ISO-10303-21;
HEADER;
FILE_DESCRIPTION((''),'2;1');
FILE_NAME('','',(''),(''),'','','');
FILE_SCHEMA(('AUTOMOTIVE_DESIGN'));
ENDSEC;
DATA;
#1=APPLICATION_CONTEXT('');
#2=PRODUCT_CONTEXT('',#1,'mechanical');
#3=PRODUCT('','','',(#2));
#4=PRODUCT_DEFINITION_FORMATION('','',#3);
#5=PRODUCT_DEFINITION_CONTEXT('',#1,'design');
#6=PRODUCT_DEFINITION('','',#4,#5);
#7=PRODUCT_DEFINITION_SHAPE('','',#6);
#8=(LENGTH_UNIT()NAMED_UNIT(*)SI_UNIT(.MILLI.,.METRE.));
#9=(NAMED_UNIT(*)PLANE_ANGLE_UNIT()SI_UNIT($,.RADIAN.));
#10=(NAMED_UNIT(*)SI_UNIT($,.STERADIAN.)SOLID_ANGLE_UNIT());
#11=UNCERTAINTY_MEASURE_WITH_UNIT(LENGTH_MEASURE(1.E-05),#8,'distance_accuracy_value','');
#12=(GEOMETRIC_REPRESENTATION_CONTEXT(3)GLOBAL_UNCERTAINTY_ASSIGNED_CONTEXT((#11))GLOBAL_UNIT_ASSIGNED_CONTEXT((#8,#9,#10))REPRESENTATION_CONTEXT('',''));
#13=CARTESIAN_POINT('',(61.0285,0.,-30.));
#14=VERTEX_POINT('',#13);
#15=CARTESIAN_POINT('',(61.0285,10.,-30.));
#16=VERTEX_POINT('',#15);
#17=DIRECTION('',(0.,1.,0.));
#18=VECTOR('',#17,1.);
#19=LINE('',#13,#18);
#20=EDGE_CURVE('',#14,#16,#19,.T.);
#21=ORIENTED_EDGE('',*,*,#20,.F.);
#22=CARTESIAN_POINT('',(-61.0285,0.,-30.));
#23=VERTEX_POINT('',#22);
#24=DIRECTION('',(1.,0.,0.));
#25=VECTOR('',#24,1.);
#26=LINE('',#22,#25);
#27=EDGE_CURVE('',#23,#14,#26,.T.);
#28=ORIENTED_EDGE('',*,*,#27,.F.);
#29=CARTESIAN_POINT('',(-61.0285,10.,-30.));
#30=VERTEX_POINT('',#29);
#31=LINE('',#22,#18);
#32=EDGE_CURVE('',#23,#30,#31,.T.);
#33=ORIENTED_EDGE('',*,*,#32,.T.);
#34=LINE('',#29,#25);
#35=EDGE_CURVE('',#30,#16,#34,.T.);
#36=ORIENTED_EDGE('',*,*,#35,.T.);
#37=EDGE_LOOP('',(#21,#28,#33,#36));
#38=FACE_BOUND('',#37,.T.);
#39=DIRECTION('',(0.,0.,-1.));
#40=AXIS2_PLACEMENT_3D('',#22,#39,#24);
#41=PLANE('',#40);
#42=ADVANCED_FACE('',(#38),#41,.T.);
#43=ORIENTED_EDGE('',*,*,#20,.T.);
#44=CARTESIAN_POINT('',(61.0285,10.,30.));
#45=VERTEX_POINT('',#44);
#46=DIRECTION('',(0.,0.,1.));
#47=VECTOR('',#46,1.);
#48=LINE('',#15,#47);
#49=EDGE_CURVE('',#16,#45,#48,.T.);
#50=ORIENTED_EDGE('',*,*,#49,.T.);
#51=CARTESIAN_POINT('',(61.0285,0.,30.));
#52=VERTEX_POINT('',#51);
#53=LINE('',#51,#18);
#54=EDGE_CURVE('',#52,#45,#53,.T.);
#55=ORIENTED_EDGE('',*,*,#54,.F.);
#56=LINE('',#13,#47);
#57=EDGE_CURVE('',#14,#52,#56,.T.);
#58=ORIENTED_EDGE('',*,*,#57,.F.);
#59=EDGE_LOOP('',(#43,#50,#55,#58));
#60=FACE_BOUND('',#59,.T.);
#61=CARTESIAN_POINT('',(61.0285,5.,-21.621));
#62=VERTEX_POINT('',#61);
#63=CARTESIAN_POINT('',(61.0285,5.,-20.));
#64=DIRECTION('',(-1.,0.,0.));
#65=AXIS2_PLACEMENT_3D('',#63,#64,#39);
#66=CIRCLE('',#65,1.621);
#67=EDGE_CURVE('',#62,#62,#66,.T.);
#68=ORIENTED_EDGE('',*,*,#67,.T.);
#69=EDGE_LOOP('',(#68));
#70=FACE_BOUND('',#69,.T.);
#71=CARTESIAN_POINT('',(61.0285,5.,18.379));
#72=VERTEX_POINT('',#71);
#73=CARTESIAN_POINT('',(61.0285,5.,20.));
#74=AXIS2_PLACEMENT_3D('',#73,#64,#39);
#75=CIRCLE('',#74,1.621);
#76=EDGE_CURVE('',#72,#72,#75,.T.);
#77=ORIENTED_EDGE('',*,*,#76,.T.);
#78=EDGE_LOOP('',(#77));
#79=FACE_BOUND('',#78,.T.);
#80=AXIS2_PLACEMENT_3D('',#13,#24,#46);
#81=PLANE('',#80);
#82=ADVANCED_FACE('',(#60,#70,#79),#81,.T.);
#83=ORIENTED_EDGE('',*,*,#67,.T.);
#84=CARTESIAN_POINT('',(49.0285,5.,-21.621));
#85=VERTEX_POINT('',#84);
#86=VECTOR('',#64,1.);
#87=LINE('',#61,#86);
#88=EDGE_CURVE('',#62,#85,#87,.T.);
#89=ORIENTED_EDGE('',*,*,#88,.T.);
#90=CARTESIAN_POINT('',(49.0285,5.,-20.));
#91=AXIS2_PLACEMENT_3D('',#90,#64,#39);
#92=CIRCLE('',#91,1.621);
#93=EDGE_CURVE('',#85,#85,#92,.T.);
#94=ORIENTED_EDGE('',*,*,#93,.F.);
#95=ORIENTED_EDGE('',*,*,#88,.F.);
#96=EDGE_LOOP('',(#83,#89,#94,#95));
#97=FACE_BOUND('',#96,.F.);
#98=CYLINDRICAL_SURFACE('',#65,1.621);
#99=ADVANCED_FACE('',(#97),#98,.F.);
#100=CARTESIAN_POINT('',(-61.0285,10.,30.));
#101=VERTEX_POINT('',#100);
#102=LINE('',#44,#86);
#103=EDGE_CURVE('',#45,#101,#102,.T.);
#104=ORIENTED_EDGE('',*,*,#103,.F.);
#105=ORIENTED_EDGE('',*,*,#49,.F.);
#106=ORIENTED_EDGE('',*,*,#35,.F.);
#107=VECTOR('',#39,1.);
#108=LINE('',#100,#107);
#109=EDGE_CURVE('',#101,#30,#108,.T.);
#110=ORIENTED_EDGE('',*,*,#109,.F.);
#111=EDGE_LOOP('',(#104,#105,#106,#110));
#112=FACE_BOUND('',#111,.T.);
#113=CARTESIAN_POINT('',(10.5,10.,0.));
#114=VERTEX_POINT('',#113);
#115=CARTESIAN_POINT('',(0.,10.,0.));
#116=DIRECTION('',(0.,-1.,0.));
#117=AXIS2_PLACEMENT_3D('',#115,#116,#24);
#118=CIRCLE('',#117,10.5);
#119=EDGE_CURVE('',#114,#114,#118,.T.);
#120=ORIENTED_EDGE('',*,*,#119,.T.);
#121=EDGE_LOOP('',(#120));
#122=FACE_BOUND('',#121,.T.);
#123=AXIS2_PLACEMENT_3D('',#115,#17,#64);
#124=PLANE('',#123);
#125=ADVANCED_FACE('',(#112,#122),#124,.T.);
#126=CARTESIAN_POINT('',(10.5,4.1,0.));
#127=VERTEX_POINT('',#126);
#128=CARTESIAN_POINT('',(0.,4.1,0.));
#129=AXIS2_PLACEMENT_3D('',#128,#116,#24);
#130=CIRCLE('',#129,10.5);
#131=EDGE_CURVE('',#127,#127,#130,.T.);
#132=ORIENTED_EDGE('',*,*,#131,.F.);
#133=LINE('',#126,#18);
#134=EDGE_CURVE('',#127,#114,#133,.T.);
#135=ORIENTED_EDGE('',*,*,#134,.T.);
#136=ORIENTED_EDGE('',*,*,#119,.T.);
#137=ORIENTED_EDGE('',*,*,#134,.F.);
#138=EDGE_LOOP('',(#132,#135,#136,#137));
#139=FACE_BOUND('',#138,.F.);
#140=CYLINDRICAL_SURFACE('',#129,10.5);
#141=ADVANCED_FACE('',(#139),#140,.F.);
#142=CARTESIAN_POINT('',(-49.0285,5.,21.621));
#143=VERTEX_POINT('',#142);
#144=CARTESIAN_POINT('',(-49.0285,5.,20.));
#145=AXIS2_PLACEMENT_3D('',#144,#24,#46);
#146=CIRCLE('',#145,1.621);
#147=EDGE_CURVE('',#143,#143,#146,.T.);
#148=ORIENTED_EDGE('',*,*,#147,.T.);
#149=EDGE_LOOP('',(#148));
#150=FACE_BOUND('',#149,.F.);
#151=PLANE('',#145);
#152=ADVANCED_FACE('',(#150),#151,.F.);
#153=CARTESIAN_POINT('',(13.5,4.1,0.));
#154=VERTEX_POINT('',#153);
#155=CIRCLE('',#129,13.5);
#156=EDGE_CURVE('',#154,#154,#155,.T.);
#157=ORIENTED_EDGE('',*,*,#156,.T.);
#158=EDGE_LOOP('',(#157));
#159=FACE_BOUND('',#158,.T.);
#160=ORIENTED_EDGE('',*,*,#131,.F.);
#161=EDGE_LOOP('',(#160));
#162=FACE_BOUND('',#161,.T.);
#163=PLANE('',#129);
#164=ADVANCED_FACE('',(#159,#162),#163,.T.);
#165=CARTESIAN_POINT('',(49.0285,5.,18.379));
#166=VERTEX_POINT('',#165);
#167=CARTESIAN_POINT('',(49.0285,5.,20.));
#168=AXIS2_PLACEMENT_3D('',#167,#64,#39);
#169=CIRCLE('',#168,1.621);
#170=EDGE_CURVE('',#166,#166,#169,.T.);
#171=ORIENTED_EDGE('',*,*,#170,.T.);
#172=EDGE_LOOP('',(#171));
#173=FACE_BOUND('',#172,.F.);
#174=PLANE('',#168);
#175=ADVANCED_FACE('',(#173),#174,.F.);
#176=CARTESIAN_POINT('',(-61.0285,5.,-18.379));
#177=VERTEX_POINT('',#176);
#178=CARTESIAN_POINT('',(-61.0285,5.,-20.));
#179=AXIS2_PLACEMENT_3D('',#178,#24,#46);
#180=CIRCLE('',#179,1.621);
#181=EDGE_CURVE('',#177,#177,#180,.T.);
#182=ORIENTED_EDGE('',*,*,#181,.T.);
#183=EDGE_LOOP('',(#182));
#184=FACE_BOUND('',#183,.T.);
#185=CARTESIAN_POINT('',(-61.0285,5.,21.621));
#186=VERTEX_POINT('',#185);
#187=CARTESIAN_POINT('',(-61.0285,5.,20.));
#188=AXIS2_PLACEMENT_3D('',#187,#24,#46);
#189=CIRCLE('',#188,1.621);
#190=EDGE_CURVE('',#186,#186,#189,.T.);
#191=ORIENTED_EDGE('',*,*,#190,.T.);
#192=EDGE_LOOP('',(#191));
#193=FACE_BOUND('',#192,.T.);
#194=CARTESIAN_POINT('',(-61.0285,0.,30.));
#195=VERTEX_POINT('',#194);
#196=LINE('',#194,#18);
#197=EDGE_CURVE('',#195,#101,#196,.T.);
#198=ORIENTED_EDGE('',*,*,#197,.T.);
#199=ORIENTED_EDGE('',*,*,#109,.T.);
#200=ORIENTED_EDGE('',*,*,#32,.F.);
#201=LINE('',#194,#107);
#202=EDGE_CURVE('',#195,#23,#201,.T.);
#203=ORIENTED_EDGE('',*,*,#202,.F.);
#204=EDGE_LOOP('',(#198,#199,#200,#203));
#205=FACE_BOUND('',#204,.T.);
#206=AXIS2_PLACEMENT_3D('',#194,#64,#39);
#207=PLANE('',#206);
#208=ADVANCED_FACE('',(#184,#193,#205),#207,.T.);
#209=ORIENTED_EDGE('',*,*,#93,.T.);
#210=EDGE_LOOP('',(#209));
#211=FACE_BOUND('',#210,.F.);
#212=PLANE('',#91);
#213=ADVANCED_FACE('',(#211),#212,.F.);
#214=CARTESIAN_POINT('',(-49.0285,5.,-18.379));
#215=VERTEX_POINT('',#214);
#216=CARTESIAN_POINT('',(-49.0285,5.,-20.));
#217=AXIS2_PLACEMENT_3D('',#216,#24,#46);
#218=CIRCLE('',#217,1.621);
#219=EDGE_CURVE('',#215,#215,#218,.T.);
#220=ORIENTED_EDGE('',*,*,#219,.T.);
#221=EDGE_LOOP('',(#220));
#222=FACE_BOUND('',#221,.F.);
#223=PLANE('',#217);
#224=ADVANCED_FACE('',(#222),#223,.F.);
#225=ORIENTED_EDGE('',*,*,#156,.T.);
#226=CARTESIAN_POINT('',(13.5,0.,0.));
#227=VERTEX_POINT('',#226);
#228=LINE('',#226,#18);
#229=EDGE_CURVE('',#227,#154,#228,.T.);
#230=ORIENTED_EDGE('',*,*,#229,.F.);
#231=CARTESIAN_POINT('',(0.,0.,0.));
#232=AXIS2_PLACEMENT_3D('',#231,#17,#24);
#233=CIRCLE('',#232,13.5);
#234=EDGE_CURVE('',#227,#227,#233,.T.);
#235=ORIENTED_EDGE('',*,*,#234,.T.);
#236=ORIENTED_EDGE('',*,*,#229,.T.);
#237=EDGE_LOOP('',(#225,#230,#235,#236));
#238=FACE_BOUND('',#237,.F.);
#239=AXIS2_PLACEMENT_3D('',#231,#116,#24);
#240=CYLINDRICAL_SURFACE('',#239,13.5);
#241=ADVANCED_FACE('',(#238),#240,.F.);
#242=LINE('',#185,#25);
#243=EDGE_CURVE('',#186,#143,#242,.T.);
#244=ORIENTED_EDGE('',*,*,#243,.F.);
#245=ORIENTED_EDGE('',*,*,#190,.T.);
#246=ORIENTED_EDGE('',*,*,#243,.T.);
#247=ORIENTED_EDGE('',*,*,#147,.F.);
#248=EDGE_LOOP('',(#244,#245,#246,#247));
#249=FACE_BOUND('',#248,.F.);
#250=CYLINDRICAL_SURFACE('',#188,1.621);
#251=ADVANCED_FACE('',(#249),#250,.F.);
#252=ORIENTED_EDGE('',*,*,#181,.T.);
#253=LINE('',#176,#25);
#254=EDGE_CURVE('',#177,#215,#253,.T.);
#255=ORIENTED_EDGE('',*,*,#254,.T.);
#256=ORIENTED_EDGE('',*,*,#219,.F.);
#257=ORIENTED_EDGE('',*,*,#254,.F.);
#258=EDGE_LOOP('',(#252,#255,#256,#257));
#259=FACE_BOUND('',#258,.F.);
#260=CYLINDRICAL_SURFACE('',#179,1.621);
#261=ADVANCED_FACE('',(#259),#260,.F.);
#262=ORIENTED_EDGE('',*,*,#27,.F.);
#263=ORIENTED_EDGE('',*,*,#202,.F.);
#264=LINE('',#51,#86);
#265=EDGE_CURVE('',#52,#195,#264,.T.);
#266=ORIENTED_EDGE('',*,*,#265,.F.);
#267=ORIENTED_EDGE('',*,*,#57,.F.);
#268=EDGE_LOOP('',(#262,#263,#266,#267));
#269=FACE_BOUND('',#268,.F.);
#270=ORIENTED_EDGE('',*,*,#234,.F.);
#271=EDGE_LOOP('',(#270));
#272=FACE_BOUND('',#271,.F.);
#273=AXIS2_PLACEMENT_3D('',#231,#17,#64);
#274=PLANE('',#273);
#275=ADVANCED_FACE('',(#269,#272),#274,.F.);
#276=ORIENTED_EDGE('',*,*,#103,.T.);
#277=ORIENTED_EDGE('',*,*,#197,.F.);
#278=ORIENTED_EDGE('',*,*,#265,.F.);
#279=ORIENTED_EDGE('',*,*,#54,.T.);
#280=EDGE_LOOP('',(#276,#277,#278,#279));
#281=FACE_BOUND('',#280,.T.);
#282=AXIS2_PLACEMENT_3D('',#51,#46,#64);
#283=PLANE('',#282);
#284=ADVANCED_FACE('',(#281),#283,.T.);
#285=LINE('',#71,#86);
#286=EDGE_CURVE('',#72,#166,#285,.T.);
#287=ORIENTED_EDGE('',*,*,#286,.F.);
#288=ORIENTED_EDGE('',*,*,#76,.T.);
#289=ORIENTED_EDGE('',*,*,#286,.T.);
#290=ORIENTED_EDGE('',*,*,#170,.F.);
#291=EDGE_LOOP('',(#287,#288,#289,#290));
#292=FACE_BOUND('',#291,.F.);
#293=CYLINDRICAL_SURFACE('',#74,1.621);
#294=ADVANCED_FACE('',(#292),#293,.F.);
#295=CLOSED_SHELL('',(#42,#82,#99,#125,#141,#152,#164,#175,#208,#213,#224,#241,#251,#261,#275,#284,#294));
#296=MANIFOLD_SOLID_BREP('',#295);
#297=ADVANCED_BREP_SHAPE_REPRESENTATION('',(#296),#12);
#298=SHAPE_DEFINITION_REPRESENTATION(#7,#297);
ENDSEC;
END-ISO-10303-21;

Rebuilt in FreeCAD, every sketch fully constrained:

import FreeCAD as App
import Part
import Sketcher

doc = App.newDocument("Part")
body = doc.addObject("PartDesign::Body", "Body")

# Sketch on XZ plane
sketch1 = body.newObject("Sketcher::SketchObject", "Sketch")
sketch1.AttachmentSupport = (doc.getObject("XZ_Plane"), [""])
sketch1.MapMode = "FlatFace"
sketch1.addGeometry(Part.LineSegment(App.Vector(61, -30, 0), App.Vector(-61, -30, 0)), False)
sketch1.addGeometry(Part.LineSegment(App.Vector(-61, -30, 0), App.Vector(-61, 30, 0)), False)
sketch1.addGeometry(Part.LineSegment(App.Vector(-61, 30, 0), App.Vector(61, 30, 0)), False)
sketch1.addGeometry(Part.LineSegment(App.Vector(61, 30, 0), App.Vector(61, -30, 0)), False)
sketch1.addConstraint(Sketcher.Constraint("Coincident", 0, 2, 1, 1))
sketch1.addConstraint(Sketcher.Constraint("Coincident", 1, 2, 2, 1))
sketch1.addConstraint(Sketcher.Constraint("Coincident", 2, 2, 3, 1))
sketch1.addConstraint(Sketcher.Constraint("Coincident", 3, 2, 0, 1))
sketch1.addConstraint(Sketcher.Constraint("Horizontal", 0))
sketch1.addConstraint(Sketcher.Constraint("Vertical", 1))
sketch1.addConstraint(Sketcher.Constraint("Horizontal", 2))
sketch1.addConstraint(Sketcher.Constraint("Vertical", 3))
sketch1.addConstraint(Sketcher.Constraint("Symmetric", 0, 2, 2, 2, -1, 1))
sketch1.addConstraint(Sketcher.Constraint("DistanceY", 1, 1, 1, 2, 60.0))
sketch1.addConstraint(Sketcher.Constraint("DistanceX", 0, 2, 0, 1, 122.057))
pad1 = body.newObject("PartDesign::Pad", "Pad")
pad1.Profile = sketch1
pad1.Length = 10
pad1.Reversed = True

# Sketch on XZ plane
sketch2 = body.newObject("Sketcher::SketchObject", "Sketch001")
sketch2.AttachmentSupport = (doc.getObject("XZ_Plane"), [""])
sketch2.MapMode = "FlatFace"
sketch2.addGeometry(Part.Circle(App.Vector(0, 0, 0), App.Vector(0, 0, 1), 14), False)
sketch2.addConstraint(Sketcher.Constraint("Coincident", 0, 3, -1, 1))
sketch2.addConstraint(Sketcher.Constraint("Diameter", 0, 27.0))
pocket1 = body.newObject("PartDesign::Pocket", "Pocket")
pocket1.Profile = sketch2
pocket1.Length = 4.1

# Sketch on XZ plane
sketch3 = body.newObject("Sketcher::SketchObject", "Sketch002")
sketch3.AttachmentSupport = (doc.getObject("XZ_Plane"), [""])
sketch3.MapMode = "FlatFace"
sketch3.AttachmentOffset = App.Placement(App.Vector(0, 0, -4.1), App.Rotation())
sketch3.addGeometry(Part.Circle(App.Vector(0, 0, 0), App.Vector(0, 0, 1), 10), False)
sketch3.addConstraint(Sketcher.Constraint("Coincident", 0, 3, -1, 1))
sketch3.addConstraint(Sketcher.Constraint("Diameter", 0, 21.0))
pocket2 = body.newObject("PartDesign::Pocket", "Pocket001")
pocket2.Profile = sketch3
pocket2.Length = 10

# Sketch on YZ plane
sketch4 = body.newObject("Sketcher::SketchObject", "Sketch003")
sketch4.AttachmentSupport = (doc.getObject("YZ_Plane"), [""])
sketch4.MapMode = "FlatFace"
sketch4.AttachmentOffset = App.Placement(App.Vector(0, 0, 61.0285), App.Rotation())
sketch4.addGeometry(Part.Circle(App.Vector(5, 20, 0), App.Vector(0, 0, 1), 1.6), False)
sketch4.addGeometry(Part.Circle(App.Vector(5, -20, 0), App.Vector(0, 0, 1), 1.6), False)
sketch4.addConstraint(Sketcher.Constraint("Equal", 0, 1))
sketch4.addConstraint(Sketcher.Constraint("Symmetric", 0, 3, 1, 3, -1))
sketch4.addConstraint(Sketcher.Constraint("Diameter", 0, 3.242))
sketch4.addConstraint(Sketcher.Constraint("DistanceX", -1, 1, 0, 3, 5.0))
sketch4.addConstraint(Sketcher.Constraint("DistanceY", -1, 1, 0, 3, 20.0))
doc.recompute()
hole = body.newObject("PartDesign::Hole", "Hole")
hole.Profile = sketch4
hole.ThreadType = "None"
hole.Diameter = 3.242
hole.DepthType = "Dimension"
hole.Depth = 12
hole.DrillPoint = "Flat"

# Sketch on YZ plane
sketch5 = body.newObject("Sketcher::SketchObject", "Sketch004")
sketch5.AttachmentSupport = (doc.getObject("YZ_Plane"), [""])
sketch5.MapMode = "FlatFace"
sketch5.AttachmentOffset = App.Placement(App.Vector(0, 0, -61.0285), App.Rotation())
sketch5.addGeometry(Part.Circle(App.Vector(5, -20, 0), App.Vector(0, 0, 1), 1.6), False)
sketch5.addGeometry(Part.Circle(App.Vector(5, 20, 0), App.Vector(0, 0, 1), 1.6), False)
sketch5.addConstraint(Sketcher.Constraint("Equal", 0, 1))
sketch5.addConstraint(Sketcher.Constraint("Symmetric", 0, 3, 1, 3, -1))
sketch5.addConstraint(Sketcher.Constraint("Diameter", 0, 3.242))
sketch5.addConstraint(Sketcher.Constraint("DistanceX", -1, 1, 0, 3, 5.0))
sketch5.addConstraint(Sketcher.Constraint("DistanceY", 0, 3, -1, 1, 20.0))
doc.recompute()
hole2 = body.newObject("PartDesign::Hole", "Hole001")
hole2.Profile = sketch5
hole2.ThreadType = "None"
hole2.Diameter = 3.242
hole2.DepthType = "Dimension"
hole2.Depth = 12
hole2.DrillPoint = "Flat"
hole2.Reversed = True

doc.recompute()
